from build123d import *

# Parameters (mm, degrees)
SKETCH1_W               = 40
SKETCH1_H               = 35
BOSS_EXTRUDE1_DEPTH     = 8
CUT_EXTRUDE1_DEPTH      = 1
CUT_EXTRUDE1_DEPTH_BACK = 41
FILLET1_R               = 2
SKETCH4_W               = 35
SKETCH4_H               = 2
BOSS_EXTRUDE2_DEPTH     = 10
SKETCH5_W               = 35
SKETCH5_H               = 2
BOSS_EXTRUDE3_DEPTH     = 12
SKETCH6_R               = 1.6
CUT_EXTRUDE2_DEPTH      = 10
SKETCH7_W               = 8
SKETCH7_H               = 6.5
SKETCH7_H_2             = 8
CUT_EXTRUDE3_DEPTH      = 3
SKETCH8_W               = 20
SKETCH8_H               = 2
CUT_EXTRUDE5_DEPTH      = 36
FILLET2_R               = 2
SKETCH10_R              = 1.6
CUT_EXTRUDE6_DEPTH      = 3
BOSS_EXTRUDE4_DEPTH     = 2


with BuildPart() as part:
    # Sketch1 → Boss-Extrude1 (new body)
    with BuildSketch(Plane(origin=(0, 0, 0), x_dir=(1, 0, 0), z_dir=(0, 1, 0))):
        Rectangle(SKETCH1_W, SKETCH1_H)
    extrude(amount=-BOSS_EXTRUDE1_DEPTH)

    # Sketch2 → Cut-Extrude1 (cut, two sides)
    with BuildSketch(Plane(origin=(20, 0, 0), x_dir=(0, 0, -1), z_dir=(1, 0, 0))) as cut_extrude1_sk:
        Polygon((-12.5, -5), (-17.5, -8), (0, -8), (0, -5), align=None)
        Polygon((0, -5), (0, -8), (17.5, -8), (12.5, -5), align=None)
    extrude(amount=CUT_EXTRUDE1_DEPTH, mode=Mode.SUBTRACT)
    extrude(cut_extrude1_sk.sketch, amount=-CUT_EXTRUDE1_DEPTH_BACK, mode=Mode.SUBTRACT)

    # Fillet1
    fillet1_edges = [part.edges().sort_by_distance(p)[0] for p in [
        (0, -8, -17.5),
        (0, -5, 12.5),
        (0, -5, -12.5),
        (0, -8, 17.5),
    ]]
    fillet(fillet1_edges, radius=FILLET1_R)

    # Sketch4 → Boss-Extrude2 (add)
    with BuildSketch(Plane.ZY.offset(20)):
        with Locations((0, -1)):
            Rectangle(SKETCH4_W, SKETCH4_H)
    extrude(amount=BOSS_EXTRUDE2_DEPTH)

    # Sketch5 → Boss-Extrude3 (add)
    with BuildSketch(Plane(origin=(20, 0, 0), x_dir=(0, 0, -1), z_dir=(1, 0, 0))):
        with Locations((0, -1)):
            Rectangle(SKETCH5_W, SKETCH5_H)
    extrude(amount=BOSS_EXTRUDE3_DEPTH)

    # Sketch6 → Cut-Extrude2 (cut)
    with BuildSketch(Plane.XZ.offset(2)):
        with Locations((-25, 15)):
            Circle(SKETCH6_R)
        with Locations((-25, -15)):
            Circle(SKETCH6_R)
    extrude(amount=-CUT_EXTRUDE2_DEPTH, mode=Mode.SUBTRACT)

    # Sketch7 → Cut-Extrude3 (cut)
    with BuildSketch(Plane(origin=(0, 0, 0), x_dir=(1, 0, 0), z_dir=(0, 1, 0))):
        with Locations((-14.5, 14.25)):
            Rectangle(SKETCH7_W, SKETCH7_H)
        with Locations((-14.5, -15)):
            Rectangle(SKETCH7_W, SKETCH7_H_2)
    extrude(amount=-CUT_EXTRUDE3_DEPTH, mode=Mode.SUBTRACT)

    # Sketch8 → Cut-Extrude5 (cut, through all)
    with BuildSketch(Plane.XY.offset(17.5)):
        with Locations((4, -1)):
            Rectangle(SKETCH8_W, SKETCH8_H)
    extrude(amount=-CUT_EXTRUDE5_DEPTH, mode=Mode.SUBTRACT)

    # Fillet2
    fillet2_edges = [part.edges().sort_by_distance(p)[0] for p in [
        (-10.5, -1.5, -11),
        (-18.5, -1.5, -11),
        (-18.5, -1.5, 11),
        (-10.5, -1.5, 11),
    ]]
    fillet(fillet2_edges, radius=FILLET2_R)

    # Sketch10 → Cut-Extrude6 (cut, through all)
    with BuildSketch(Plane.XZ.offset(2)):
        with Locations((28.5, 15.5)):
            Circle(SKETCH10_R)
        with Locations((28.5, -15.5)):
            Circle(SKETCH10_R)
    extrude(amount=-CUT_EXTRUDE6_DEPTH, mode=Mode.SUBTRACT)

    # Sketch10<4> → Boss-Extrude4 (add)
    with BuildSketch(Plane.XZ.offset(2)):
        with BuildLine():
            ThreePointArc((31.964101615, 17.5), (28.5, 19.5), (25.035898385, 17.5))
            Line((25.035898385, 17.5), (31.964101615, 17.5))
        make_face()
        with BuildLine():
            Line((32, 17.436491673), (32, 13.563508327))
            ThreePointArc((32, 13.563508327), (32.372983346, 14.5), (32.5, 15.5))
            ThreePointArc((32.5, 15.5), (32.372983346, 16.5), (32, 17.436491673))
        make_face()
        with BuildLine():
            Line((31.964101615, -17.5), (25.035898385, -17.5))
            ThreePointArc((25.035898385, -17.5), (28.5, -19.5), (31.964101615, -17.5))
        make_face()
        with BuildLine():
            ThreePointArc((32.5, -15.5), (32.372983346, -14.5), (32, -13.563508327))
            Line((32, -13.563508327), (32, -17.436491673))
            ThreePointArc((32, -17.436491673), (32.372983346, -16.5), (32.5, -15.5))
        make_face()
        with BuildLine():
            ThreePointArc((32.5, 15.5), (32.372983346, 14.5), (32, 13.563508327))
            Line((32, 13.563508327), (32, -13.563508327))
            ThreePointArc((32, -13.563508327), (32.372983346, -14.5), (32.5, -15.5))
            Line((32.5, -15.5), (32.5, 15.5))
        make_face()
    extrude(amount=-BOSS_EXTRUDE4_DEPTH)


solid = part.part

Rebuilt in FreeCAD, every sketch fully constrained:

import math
import FreeCAD as App
import Part
import Sketcher


def edges_at(feature, points):
    """Names of the edges that pass closest to the given points."""
    edges = feature.Shape.Edges
    near = lambda p: min(range(len(edges)), key=lambda i: edges[i].distToShape(Part.Vertex(*p))[0])
    return sorted({f"Edge{near(p) + 1}" for p in points})

doc = App.newDocument("Part")
body = doc.addObject("PartDesign::Body", "Body")

sketch1 = body.newObject("Sketcher::SketchObject", "Sketch")
sketch1.AttachmentSupport = (doc.getObject("XZ_Plane"), [""])
sketch1.MapMode = "FlatFace"
sketch1.addGeometry([
    Part.LineSegment(App.Vector(-20, -17.5, 0), App.Vector(-20, 17.5, 0)),
    Part.LineSegment(App.Vector(-20, 17.5, 0), App.Vector(20, 17.5, 0)),
    Part.LineSegment(App.Vector(20, 17.5, 0), App.Vector(20, -17.5, 0)),
    Part.LineSegment(App.Vector(20, -17.5, 0), App.Vector(-20, -17.5, 0)),
], False)
sketch1.addConstraint([
    Sketcher.Constraint("Coincident", 0, 2, 1, 1),
    Sketcher.Constraint("Coincident", 1, 2, 2, 1),
    Sketcher.Constraint("Coincident", 2, 2, 3, 1),
    Sketcher.Constraint("Coincident", 3, 2, 0, 1),
    Sketcher.Constraint("Vertical", 0),
    Sketcher.Constraint("Horizontal", 1),
    Sketcher.Constraint("Vertical", 2),
    Sketcher.Constraint("Horizontal", 3),
    Sketcher.Constraint("Symmetric", 0, 2, 2, 2, -1, 1),
    Sketcher.Constraint("DistanceX", 1, 1, 1, 2, 40.0),
    Sketcher.Constraint("DistanceY", 0, 1, 0, 2, 35.0),
])
pad1 = body.newObject("PartDesign::Pad", "Pad")
pad1.Profile = sketch1
pad1.Length = 8

sketch2 = body.newObject("Sketcher::SketchObject", "Sketch001")
sketch2.AttachmentSupport = (doc.getObject("YZ_Plane"), [""])
sketch2.MapMode = "FlatFace"
sketch2.AttachmentOffset = App.Placement(App.Vector(0, 0, 20), App.Rotation())
sketch2.addGeometry([
    Part.LineSegment(App.Vector(-5, 12.5, 0), App.Vector(-8, 17.5, 0)),
    Part.LineSegment(App.Vector(-8, 17.5, 0), App.Vector(-8, -17.5, 0)),
    Part.LineSegment(App.Vector(-8, -17.5, 0), App.Vector(-5, -12.5, 0)),
    Part.LineSegment(App.Vector(-5, -12.5, 0), App.Vector(-5, 12.5, 0)),
], False)
sketch2.addConstraint([
    Sketcher.Constraint("Coincident", 0, 2, 1, 1),
    Sketcher.Constraint("Coincident", 1, 2, 2, 1),
    Sketcher.Constraint("Coincident", 2, 2, 3, 1),
    Sketcher.Constraint("Coincident", 3, 2, 0, 1),
    Sketcher.Constraint("Vertical", 1),
    Sketcher.Constraint("Vertical", 3),
    Sketcher.Constraint("Equal", 0, 2),
    Sketcher.Constraint("DistanceY", 1, 2, 1, 1, 35.0),
    Sketcher.Constraint("DistanceY", 3, 1, 3, 2, 25.0),
    Sketcher.Constraint("DistanceX", 0, 2, -1, 1, 8.0),
    Sketcher.Constraint("DistanceX", 2, 2, -1, 1, 5.0),
    Sketcher.Constraint("DistanceY", -1, 1, 0, 2, 17.5),
])
pocket1 = body.newObject("PartDesign::Pocket", "Pocket")
pocket1.Profile = sketch2
pocket1.Type = "ThroughAll"
pocket1.Midplane = True
doc.recompute()

fillet = body.newObject("PartDesign::Fillet", "Fillet")
fillet.Base = (pocket1, edges_at(pocket1, [
    (0, -8, -17.5),
    (0, -5, 12.5),
    (0, -5, -12.5),
    (0, -8, 17.5),
]))
fillet.Radius = 2

sketch3 = body.newObject("Sketcher::SketchObject", "Sketch002")
sketch3.AttachmentSupport = (doc.getObject("YZ_Plane"), [""])
sketch3.MapMode = "FlatFace"
sketch3.AttachmentOffset = App.Placement(App.Vector(0, 0, -20), App.Rotation())
sketch3.addGeometry([
    Part.LineSegment(App.Vector(0, -17.5, 0), App.Vector(-2, -17.5, 0)),
    Part.LineSegment(App.Vector(-2, -17.5, 0), App.Vector(-2, 17.5, 0)),
    Part.LineSegment(App.Vector(-2, 17.5, 0), App.Vector(0, 17.5, 0)),
    Part.LineSegment(App.Vector(0, 17.5, 0), App.Vector(0, -17.5, 0)),
], False)
sketch3.addConstraint([
    Sketcher.Constraint("Coincident", 0, 2, 1, 1),
    Sketcher.Constraint("Coincident", 1, 2, 2, 1),
    Sketcher.Constraint("Coincident", 2, 2, 3, 1),
    Sketcher.Constraint("Coincident", 3, 2, 0, 1),
    Sketcher.Constraint("Horizontal", 0),
    Sketcher.Constraint("Vertical", 1),
    Sketcher.Constraint("Horizontal", 2),
    Sketcher.Constraint("Vertical", 3),
    Sketcher.Constraint("Symmetric", 2, 2, 3, 2, -1, 1),
    Sketcher.Constraint("DistanceX", 0, 2, 0, 1, 2.0),
    Sketcher.Constraint("DistanceY", 1, 1, 1, 2, 35.0),
])
pad2 = body.newObject("PartDesign::Pad", "Pad001")
pad2.Profile = sketch3
pad2.Length = 10
pad2.Reversed = True

sketch4 = body.newObject("Sketcher::SketchObject", "Sketch003")
sketch4.AttachmentSupport = (doc.getObject("YZ_Plane"), [""])
sketch4.MapMode = "FlatFace"
sketch4.AttachmentOffset = App.Placement(App.Vector(0, 0, 20), App.Rotation())
sketch4.addGeometry([
    Part.LineSegment(App.Vector(0, 17.5, 0), App.Vector(-2, 17.5, 0)),
    Part.LineSegment(App.Vector(-2, 17.5, 0), App.Vector(-2, -17.5, 0)),
    Part.LineSegment(App.Vector(-2, -17.5, 0), App.Vector(0, -17.5, 0)),
    Part.LineSegment(App.Vector(0, -17.5, 0), App.Vector(0, 17.5, 0)),
], False)
sketch4.addConstraint([
    Sketcher.Constraint("Coincident", 0, 2, 1, 1),
    Sketcher.Constraint("Coincident", 1, 2, 2, 1),
    Sketcher.Constraint("Coincident", 2, 2, 3, 1),
    Sketcher.Constraint("Coincident", 3, 2, 0, 1),
    Sketcher.Constraint("Horizontal", 0),
    Sketcher.Constraint("Vertical", 1),
    Sketcher.Constraint("Horizontal", 2),
    Sketcher.Constraint("Vertical", 3),
    Sketcher.Constraint("Symmetric", 2, 2, 3, 2, -1, 1),
    Sketcher.Constraint("DistanceX", 0, 2, 0, 1, 2.0),
    Sketcher.Constraint("DistanceY", 1, 2, 1, 1, 35.0),
])
pad3 = body.newObject("PartDesign::Pad", "Pad002")
pad3.Profile = sketch4
pad3.Length = 12

sketch5 = body.newObject("Sketcher::SketchObject", "Sketch004")
sketch5.AttachmentSupport = (doc.getObject("XZ_Plane"), [""])
sketch5.MapMode = "FlatFace"
sketch5.AttachmentOffset = App.Placement(App.Vector(0, 0, 2), App.Rotation())
sketch5.addGeometry([
    Part.Circle(App.Vector(-25, 15, 0), App.Vector(0, 0, 1), 1.6),
    Part.Circle(App.Vector(-25, -15, 0), App.Vector(0, 0, 1), 1.6),
], False)
sketch5.addConstraint([
    Sketcher.Constraint("Equal", 0, 1),
    Sketcher.Constraint("Symmetric", 0, 3, 1, 3, -1),
    Sketcher.Constraint("Diameter", 0, 3.2),
    Sketcher.Constraint("DistanceX", 0, 3, -1, 1, 25.0),
    Sketcher.Constraint("DistanceY", -1, 1, 0, 3, 15.0),
])
pocket2 = body.newObject("PartDesign::Pocket", "Pocket001")
pocket2.Profile = sketch5
pocket2.Length = 10

sketch6 = body.newObject("Sketcher::SketchObject", "Sketch005")
sketch6.AttachmentSupport = (doc.getObject("XZ_Plane"), [""])
sketch6.MapMode = "FlatFace"
sketch6.addGeometry([
    Part.LineSegment(App.Vector(-18.5, -17.5, 0), App.Vector(-18.5, -11, 0)),
    Part.LineSegment(App.Vector(-18.5, -11, 0), App.Vector(-10.5, -11, 0)),
    Part.LineSegment(App.Vector(-10.5, -11, 0), App.Vector(-10.5, -17.5, 0)),
    Part.LineSegment(App.Vector(-10.5, -17.5, 0), App.Vector(-18.5, -17.5, 0)),
    Part.LineSegment(App.Vector(-18.5, 11, 0), App.Vector(-18.5, 19, 0)),
    Part.LineSegment(App.Vector(-18.5, 19, 0), App.Vector(-10.5, 19, 0)),
    Part.LineSegment(App.Vector(-10.5, 19, 0), App.Vector(-10.5, 11, 0)),
    Part.LineSegment(App.Vector(-10.5, 11, 0), App.Vector(-18.5, 11, 0)),
], False)
sketch6.addConstraint([
    Sketcher.Constraint("Coincident", 0, 2, 1, 1),
    Sketcher.Constraint("Coincident", 1, 2, 2, 1),
    Sketcher.Constraint("Coincident", 2, 2, 3, 1),
    Sketcher.Constraint("Coincident", 3, 2, 0, 1),
    Sketcher.Constraint("Coincident", 4, 2, 5, 1),
    Sketcher.Constraint("Coincident", 5, 2, 6, 1),
    Sketcher.Constraint("Coincident", 6, 2, 7, 1),
    Sketcher.Constraint("Coincident", 7, 2, 4, 1),
    Sketcher.Constraint("Vertical", 0),
    Sketcher.Constraint("Horizontal", 1),
    Sketcher.Constraint("Vertical", 2),
    Sketcher.Constraint("Horizontal", 3),
    Sketcher.Constraint("Vertical", 4),
    Sketcher.Constraint("Horizontal", 5),
    Sketcher.Constraint("Vertical", 6),
    Sketcher.Constraint("Horizontal", 7),
    Sketcher.Constraint("Symmetric", 1, 2, 6, 2, -1),
    Sketcher.Constraint("Vertical", 3, 2, 4, 2),
    Sketcher.Constraint("Equal", 7, 4),
    Sketcher.Constraint("DistanceX", 1, 1, 1, 2, 8.0),
    Sketcher.Constraint("DistanceY", 0, 1, 0, 2, 6.5),
    Sketcher.Constraint("DistanceY", 0, 2, -1, 1, 11.0),
    Sketcher.Constraint("DistanceX", 0, 2, -1, 1, 18.5),
])
pocket3 = body.newObject("PartDesign::Pocket", "Pocket002")
pocket3.Profile = sketch6
pocket3.Length = 3
pocket3.Reversed = True

sketch7 = body.newObject("Sketcher::SketchObject", "Sketch006")
sketch7.AttachmentSupport = (doc.getObject("XY_Plane"), [""])
sketch7.MapMode = "FlatFace"
sketch7.AttachmentOffset = App.Placement(App.Vector(0, 0, 17.5), App.Rotation())
sketch7.addGeometry([
    Part.LineSegment(App.Vector(-6, 0, 0), App.Vector(-6, -2, 0)),
    Part.LineSegment(App.Vector(-6, -2, 0), App.Vector(14, -2, 0)),
    Part.LineSegment(App.Vector(14, -2, 0), App.Vector(14, 0, 0)),
    Part.LineSegment(App.Vector(14, 0, 0), App.Vector(-6, 0, 0)),
], False)
sketch7.addConstraint([
    Sketcher.Constraint("Coincident", 0, 2, 1, 1),
    Sketcher.Constraint("Coincident", 1, 2, 2, 1),
    Sketcher.Constraint("Coincident", 2, 2, 3, 1),
    Sketcher.Constraint("Coincident", 3, 2, 0, 1),
    Sketcher.Constraint("Vertical", 0),
    Sketcher.Constraint("Horizontal", 1),
    Sketcher.Constraint("Vertical", 2),
    Sketcher.Constraint("Horizontal", 3),
    Sketcher.Constraint("PointOnObject", 2, 2, -1),
    Sketcher.Constraint("DistanceX", 1, 1, 1, 2, 20.0),
    Sketcher.Constraint("DistanceY", 0, 2, 0, 1, 2.0),
    Sketcher.Constraint("DistanceX", 0, 2, -1, 1, 6.0),
])
pocket4 = body.newObject("PartDesign::Pocket", "Pocket003")
pocket4.Profile = sketch7
pocket4.Type = "ThroughAll"
doc.recompute()

fillet2 = body.newObject("PartDesign::Fillet", "Fillet001")
fillet2.Base = (pocket4, edges_at(pocket4, [
    (-10.5, -1.5, -11),
    (-18.5, -1.5, -11),
    (-18.5, -1.5, 11),
    (-10.5, -1.5, 11),
]))
fillet2.Radius = 2

sketch8 = body.newObject("Sketcher::SketchObject", "Sketch007")
sketch8.AttachmentSupport = (doc.getObject("XZ_Plane"), [""])
sketch8.MapMode = "FlatFace"
sketch8.AttachmentOffset = App.Placement(App.Vector(0, 0, 2), App.Rotation())
sketch8.addGeometry([
    Part.Circle(App.Vector(28.5, 15.5, 0), App.Vector(0, 0, 1), 1.6),
    Part.Circle(App.Vector(28.5, -15.5, 0), App.Vector(0, 0, 1), 1.6),
], False)
sketch8.addConstraint([
    Sketcher.Constraint("Equal", 0, 1),
    Sketcher.Constraint("Symmetric", 0, 3, 1, 3, -1),
    Sketcher.Constraint("Diameter", 0, 3.2),
    Sketcher.Constraint("DistanceY", 1, 3, 0, 3, 31.0),
    Sketcher.Constraint("DistanceX", -1, 1, 0, 3, 28.5),
])
pocket5 = body.newObject("PartDesign::Pocket", "Pocket004")
pocket5.Profile = sketch8
pocket5.Type = "ThroughAll"

sketch9 = body.newObject("Sketcher::SketchObject", "Sketch008")
sketch9.AttachmentSupport = (doc.getObject("XZ_Plane"), [""])
sketch9.MapMode = "FlatFace"
sketch9.AttachmentOffset = App.Placement(App.Vector(0, 0, 2), App.Rotation())
sketch9.addGeometry([
    Part.ArcOfCircle(Part.Circle(App.Vector(28.5, 15.5, 0), App.Vector(0, 0, 1), 4), math.radians(30), math.radians(150)),
    Part.LineSegment(App.Vector(25.035898, 17.5, 0), App.Vector(31.964102, 17.5, 0)),
    Part.LineSegment(App.Vector(32, 17.436492, 0), App.Vector(32, -17.436492, 0)),
    Part.ArcOfCircle(Part.Circle(App.Vector(28.5, -15.5, 0), App.Vector(0, 0, 1), 4), math.radians(-28.955024), math.radians(0)),
    Part.LineSegment(App.Vector(32.5, -15.5, 0), App.Vector(32.5, 15.5, 0)),
    Part.ArcOfCircle(Part.Circle(App.Vector(28.5, 15.5, 0), App.Vector(0, 0, 1), 4), math.radians(0), math.radians(28.955024)),
    Part.LineSegment(App.Vector(31.964102, -17.5, 0), App.Vector(25.035898, -17.5, 0)),
    Part.ArcOfCircle(Part.Circle(App.Vector(28.5, -15.5, 0), App.Vector(0, 0, 1), 4), math.radians(-150), math.radians(-30)),
], False)
sketch9.addConstraint([
    Sketcher.Constraint("Coincident", 0, 1, 1, 2),
    Sketcher.Constraint("Coincident", 1, 1, 0, 2),
    Sketcher.Constraint("Coincident", 2, 2, 3, 1),
    Sketcher.Constraint("Tangent", 3, 2, 4, 1),
    Sketcher.Constraint("Tangent", 4, 2, 5, 1),
    Sketcher.Constraint("Coincident", 5, 2, 2, 1),
    Sketcher.Constraint("Coincident", 6, 1, 7, 2),
    Sketcher.Constraint("Coincident", 7, 1, 6, 2),
    Sketcher.Constraint("Horizontal", 1),
    Sketcher.Constraint("Vertical", 2),
    Sketcher.Constraint("Vertical", 4),
    Sketcher.Constraint("Horizontal", 6),
    Sketcher.Constraint("Coincident", 5, 3, 0, 3),
    Sketcher.Constraint("Coincident", 7, 3, 3, 3),
    Sketcher.Constraint("Equal", 0, 3),
    Sketcher.Constraint("Equal", 3, 5),
    Sketcher.Constraint("Equal", 5, 7),
    Sketcher.Constraint("Symmetric", 0, 1, 6, 1, -1),
    Sketcher.Constraint("Radius", 0, 4.0),
    Sketcher.Constraint("DistanceY", 4, 1, 4, 2, 31.0),
    Sketcher.Constraint("DistanceX", -1, 1, 2, 2, 32.0),
    Sketcher.Constraint("DistanceY", 0, 3, 0, 1, 2.0),
    Sketcher.Constraint("DistanceX", -1, 1, 0, 3, 28.5),
])
pad4 = body.newObject("PartDesign::Pad", "Pad003")
pad4.Profile = sketch9
pad4.Length = 2
pad4.Reversed = True

doc.recompute()
